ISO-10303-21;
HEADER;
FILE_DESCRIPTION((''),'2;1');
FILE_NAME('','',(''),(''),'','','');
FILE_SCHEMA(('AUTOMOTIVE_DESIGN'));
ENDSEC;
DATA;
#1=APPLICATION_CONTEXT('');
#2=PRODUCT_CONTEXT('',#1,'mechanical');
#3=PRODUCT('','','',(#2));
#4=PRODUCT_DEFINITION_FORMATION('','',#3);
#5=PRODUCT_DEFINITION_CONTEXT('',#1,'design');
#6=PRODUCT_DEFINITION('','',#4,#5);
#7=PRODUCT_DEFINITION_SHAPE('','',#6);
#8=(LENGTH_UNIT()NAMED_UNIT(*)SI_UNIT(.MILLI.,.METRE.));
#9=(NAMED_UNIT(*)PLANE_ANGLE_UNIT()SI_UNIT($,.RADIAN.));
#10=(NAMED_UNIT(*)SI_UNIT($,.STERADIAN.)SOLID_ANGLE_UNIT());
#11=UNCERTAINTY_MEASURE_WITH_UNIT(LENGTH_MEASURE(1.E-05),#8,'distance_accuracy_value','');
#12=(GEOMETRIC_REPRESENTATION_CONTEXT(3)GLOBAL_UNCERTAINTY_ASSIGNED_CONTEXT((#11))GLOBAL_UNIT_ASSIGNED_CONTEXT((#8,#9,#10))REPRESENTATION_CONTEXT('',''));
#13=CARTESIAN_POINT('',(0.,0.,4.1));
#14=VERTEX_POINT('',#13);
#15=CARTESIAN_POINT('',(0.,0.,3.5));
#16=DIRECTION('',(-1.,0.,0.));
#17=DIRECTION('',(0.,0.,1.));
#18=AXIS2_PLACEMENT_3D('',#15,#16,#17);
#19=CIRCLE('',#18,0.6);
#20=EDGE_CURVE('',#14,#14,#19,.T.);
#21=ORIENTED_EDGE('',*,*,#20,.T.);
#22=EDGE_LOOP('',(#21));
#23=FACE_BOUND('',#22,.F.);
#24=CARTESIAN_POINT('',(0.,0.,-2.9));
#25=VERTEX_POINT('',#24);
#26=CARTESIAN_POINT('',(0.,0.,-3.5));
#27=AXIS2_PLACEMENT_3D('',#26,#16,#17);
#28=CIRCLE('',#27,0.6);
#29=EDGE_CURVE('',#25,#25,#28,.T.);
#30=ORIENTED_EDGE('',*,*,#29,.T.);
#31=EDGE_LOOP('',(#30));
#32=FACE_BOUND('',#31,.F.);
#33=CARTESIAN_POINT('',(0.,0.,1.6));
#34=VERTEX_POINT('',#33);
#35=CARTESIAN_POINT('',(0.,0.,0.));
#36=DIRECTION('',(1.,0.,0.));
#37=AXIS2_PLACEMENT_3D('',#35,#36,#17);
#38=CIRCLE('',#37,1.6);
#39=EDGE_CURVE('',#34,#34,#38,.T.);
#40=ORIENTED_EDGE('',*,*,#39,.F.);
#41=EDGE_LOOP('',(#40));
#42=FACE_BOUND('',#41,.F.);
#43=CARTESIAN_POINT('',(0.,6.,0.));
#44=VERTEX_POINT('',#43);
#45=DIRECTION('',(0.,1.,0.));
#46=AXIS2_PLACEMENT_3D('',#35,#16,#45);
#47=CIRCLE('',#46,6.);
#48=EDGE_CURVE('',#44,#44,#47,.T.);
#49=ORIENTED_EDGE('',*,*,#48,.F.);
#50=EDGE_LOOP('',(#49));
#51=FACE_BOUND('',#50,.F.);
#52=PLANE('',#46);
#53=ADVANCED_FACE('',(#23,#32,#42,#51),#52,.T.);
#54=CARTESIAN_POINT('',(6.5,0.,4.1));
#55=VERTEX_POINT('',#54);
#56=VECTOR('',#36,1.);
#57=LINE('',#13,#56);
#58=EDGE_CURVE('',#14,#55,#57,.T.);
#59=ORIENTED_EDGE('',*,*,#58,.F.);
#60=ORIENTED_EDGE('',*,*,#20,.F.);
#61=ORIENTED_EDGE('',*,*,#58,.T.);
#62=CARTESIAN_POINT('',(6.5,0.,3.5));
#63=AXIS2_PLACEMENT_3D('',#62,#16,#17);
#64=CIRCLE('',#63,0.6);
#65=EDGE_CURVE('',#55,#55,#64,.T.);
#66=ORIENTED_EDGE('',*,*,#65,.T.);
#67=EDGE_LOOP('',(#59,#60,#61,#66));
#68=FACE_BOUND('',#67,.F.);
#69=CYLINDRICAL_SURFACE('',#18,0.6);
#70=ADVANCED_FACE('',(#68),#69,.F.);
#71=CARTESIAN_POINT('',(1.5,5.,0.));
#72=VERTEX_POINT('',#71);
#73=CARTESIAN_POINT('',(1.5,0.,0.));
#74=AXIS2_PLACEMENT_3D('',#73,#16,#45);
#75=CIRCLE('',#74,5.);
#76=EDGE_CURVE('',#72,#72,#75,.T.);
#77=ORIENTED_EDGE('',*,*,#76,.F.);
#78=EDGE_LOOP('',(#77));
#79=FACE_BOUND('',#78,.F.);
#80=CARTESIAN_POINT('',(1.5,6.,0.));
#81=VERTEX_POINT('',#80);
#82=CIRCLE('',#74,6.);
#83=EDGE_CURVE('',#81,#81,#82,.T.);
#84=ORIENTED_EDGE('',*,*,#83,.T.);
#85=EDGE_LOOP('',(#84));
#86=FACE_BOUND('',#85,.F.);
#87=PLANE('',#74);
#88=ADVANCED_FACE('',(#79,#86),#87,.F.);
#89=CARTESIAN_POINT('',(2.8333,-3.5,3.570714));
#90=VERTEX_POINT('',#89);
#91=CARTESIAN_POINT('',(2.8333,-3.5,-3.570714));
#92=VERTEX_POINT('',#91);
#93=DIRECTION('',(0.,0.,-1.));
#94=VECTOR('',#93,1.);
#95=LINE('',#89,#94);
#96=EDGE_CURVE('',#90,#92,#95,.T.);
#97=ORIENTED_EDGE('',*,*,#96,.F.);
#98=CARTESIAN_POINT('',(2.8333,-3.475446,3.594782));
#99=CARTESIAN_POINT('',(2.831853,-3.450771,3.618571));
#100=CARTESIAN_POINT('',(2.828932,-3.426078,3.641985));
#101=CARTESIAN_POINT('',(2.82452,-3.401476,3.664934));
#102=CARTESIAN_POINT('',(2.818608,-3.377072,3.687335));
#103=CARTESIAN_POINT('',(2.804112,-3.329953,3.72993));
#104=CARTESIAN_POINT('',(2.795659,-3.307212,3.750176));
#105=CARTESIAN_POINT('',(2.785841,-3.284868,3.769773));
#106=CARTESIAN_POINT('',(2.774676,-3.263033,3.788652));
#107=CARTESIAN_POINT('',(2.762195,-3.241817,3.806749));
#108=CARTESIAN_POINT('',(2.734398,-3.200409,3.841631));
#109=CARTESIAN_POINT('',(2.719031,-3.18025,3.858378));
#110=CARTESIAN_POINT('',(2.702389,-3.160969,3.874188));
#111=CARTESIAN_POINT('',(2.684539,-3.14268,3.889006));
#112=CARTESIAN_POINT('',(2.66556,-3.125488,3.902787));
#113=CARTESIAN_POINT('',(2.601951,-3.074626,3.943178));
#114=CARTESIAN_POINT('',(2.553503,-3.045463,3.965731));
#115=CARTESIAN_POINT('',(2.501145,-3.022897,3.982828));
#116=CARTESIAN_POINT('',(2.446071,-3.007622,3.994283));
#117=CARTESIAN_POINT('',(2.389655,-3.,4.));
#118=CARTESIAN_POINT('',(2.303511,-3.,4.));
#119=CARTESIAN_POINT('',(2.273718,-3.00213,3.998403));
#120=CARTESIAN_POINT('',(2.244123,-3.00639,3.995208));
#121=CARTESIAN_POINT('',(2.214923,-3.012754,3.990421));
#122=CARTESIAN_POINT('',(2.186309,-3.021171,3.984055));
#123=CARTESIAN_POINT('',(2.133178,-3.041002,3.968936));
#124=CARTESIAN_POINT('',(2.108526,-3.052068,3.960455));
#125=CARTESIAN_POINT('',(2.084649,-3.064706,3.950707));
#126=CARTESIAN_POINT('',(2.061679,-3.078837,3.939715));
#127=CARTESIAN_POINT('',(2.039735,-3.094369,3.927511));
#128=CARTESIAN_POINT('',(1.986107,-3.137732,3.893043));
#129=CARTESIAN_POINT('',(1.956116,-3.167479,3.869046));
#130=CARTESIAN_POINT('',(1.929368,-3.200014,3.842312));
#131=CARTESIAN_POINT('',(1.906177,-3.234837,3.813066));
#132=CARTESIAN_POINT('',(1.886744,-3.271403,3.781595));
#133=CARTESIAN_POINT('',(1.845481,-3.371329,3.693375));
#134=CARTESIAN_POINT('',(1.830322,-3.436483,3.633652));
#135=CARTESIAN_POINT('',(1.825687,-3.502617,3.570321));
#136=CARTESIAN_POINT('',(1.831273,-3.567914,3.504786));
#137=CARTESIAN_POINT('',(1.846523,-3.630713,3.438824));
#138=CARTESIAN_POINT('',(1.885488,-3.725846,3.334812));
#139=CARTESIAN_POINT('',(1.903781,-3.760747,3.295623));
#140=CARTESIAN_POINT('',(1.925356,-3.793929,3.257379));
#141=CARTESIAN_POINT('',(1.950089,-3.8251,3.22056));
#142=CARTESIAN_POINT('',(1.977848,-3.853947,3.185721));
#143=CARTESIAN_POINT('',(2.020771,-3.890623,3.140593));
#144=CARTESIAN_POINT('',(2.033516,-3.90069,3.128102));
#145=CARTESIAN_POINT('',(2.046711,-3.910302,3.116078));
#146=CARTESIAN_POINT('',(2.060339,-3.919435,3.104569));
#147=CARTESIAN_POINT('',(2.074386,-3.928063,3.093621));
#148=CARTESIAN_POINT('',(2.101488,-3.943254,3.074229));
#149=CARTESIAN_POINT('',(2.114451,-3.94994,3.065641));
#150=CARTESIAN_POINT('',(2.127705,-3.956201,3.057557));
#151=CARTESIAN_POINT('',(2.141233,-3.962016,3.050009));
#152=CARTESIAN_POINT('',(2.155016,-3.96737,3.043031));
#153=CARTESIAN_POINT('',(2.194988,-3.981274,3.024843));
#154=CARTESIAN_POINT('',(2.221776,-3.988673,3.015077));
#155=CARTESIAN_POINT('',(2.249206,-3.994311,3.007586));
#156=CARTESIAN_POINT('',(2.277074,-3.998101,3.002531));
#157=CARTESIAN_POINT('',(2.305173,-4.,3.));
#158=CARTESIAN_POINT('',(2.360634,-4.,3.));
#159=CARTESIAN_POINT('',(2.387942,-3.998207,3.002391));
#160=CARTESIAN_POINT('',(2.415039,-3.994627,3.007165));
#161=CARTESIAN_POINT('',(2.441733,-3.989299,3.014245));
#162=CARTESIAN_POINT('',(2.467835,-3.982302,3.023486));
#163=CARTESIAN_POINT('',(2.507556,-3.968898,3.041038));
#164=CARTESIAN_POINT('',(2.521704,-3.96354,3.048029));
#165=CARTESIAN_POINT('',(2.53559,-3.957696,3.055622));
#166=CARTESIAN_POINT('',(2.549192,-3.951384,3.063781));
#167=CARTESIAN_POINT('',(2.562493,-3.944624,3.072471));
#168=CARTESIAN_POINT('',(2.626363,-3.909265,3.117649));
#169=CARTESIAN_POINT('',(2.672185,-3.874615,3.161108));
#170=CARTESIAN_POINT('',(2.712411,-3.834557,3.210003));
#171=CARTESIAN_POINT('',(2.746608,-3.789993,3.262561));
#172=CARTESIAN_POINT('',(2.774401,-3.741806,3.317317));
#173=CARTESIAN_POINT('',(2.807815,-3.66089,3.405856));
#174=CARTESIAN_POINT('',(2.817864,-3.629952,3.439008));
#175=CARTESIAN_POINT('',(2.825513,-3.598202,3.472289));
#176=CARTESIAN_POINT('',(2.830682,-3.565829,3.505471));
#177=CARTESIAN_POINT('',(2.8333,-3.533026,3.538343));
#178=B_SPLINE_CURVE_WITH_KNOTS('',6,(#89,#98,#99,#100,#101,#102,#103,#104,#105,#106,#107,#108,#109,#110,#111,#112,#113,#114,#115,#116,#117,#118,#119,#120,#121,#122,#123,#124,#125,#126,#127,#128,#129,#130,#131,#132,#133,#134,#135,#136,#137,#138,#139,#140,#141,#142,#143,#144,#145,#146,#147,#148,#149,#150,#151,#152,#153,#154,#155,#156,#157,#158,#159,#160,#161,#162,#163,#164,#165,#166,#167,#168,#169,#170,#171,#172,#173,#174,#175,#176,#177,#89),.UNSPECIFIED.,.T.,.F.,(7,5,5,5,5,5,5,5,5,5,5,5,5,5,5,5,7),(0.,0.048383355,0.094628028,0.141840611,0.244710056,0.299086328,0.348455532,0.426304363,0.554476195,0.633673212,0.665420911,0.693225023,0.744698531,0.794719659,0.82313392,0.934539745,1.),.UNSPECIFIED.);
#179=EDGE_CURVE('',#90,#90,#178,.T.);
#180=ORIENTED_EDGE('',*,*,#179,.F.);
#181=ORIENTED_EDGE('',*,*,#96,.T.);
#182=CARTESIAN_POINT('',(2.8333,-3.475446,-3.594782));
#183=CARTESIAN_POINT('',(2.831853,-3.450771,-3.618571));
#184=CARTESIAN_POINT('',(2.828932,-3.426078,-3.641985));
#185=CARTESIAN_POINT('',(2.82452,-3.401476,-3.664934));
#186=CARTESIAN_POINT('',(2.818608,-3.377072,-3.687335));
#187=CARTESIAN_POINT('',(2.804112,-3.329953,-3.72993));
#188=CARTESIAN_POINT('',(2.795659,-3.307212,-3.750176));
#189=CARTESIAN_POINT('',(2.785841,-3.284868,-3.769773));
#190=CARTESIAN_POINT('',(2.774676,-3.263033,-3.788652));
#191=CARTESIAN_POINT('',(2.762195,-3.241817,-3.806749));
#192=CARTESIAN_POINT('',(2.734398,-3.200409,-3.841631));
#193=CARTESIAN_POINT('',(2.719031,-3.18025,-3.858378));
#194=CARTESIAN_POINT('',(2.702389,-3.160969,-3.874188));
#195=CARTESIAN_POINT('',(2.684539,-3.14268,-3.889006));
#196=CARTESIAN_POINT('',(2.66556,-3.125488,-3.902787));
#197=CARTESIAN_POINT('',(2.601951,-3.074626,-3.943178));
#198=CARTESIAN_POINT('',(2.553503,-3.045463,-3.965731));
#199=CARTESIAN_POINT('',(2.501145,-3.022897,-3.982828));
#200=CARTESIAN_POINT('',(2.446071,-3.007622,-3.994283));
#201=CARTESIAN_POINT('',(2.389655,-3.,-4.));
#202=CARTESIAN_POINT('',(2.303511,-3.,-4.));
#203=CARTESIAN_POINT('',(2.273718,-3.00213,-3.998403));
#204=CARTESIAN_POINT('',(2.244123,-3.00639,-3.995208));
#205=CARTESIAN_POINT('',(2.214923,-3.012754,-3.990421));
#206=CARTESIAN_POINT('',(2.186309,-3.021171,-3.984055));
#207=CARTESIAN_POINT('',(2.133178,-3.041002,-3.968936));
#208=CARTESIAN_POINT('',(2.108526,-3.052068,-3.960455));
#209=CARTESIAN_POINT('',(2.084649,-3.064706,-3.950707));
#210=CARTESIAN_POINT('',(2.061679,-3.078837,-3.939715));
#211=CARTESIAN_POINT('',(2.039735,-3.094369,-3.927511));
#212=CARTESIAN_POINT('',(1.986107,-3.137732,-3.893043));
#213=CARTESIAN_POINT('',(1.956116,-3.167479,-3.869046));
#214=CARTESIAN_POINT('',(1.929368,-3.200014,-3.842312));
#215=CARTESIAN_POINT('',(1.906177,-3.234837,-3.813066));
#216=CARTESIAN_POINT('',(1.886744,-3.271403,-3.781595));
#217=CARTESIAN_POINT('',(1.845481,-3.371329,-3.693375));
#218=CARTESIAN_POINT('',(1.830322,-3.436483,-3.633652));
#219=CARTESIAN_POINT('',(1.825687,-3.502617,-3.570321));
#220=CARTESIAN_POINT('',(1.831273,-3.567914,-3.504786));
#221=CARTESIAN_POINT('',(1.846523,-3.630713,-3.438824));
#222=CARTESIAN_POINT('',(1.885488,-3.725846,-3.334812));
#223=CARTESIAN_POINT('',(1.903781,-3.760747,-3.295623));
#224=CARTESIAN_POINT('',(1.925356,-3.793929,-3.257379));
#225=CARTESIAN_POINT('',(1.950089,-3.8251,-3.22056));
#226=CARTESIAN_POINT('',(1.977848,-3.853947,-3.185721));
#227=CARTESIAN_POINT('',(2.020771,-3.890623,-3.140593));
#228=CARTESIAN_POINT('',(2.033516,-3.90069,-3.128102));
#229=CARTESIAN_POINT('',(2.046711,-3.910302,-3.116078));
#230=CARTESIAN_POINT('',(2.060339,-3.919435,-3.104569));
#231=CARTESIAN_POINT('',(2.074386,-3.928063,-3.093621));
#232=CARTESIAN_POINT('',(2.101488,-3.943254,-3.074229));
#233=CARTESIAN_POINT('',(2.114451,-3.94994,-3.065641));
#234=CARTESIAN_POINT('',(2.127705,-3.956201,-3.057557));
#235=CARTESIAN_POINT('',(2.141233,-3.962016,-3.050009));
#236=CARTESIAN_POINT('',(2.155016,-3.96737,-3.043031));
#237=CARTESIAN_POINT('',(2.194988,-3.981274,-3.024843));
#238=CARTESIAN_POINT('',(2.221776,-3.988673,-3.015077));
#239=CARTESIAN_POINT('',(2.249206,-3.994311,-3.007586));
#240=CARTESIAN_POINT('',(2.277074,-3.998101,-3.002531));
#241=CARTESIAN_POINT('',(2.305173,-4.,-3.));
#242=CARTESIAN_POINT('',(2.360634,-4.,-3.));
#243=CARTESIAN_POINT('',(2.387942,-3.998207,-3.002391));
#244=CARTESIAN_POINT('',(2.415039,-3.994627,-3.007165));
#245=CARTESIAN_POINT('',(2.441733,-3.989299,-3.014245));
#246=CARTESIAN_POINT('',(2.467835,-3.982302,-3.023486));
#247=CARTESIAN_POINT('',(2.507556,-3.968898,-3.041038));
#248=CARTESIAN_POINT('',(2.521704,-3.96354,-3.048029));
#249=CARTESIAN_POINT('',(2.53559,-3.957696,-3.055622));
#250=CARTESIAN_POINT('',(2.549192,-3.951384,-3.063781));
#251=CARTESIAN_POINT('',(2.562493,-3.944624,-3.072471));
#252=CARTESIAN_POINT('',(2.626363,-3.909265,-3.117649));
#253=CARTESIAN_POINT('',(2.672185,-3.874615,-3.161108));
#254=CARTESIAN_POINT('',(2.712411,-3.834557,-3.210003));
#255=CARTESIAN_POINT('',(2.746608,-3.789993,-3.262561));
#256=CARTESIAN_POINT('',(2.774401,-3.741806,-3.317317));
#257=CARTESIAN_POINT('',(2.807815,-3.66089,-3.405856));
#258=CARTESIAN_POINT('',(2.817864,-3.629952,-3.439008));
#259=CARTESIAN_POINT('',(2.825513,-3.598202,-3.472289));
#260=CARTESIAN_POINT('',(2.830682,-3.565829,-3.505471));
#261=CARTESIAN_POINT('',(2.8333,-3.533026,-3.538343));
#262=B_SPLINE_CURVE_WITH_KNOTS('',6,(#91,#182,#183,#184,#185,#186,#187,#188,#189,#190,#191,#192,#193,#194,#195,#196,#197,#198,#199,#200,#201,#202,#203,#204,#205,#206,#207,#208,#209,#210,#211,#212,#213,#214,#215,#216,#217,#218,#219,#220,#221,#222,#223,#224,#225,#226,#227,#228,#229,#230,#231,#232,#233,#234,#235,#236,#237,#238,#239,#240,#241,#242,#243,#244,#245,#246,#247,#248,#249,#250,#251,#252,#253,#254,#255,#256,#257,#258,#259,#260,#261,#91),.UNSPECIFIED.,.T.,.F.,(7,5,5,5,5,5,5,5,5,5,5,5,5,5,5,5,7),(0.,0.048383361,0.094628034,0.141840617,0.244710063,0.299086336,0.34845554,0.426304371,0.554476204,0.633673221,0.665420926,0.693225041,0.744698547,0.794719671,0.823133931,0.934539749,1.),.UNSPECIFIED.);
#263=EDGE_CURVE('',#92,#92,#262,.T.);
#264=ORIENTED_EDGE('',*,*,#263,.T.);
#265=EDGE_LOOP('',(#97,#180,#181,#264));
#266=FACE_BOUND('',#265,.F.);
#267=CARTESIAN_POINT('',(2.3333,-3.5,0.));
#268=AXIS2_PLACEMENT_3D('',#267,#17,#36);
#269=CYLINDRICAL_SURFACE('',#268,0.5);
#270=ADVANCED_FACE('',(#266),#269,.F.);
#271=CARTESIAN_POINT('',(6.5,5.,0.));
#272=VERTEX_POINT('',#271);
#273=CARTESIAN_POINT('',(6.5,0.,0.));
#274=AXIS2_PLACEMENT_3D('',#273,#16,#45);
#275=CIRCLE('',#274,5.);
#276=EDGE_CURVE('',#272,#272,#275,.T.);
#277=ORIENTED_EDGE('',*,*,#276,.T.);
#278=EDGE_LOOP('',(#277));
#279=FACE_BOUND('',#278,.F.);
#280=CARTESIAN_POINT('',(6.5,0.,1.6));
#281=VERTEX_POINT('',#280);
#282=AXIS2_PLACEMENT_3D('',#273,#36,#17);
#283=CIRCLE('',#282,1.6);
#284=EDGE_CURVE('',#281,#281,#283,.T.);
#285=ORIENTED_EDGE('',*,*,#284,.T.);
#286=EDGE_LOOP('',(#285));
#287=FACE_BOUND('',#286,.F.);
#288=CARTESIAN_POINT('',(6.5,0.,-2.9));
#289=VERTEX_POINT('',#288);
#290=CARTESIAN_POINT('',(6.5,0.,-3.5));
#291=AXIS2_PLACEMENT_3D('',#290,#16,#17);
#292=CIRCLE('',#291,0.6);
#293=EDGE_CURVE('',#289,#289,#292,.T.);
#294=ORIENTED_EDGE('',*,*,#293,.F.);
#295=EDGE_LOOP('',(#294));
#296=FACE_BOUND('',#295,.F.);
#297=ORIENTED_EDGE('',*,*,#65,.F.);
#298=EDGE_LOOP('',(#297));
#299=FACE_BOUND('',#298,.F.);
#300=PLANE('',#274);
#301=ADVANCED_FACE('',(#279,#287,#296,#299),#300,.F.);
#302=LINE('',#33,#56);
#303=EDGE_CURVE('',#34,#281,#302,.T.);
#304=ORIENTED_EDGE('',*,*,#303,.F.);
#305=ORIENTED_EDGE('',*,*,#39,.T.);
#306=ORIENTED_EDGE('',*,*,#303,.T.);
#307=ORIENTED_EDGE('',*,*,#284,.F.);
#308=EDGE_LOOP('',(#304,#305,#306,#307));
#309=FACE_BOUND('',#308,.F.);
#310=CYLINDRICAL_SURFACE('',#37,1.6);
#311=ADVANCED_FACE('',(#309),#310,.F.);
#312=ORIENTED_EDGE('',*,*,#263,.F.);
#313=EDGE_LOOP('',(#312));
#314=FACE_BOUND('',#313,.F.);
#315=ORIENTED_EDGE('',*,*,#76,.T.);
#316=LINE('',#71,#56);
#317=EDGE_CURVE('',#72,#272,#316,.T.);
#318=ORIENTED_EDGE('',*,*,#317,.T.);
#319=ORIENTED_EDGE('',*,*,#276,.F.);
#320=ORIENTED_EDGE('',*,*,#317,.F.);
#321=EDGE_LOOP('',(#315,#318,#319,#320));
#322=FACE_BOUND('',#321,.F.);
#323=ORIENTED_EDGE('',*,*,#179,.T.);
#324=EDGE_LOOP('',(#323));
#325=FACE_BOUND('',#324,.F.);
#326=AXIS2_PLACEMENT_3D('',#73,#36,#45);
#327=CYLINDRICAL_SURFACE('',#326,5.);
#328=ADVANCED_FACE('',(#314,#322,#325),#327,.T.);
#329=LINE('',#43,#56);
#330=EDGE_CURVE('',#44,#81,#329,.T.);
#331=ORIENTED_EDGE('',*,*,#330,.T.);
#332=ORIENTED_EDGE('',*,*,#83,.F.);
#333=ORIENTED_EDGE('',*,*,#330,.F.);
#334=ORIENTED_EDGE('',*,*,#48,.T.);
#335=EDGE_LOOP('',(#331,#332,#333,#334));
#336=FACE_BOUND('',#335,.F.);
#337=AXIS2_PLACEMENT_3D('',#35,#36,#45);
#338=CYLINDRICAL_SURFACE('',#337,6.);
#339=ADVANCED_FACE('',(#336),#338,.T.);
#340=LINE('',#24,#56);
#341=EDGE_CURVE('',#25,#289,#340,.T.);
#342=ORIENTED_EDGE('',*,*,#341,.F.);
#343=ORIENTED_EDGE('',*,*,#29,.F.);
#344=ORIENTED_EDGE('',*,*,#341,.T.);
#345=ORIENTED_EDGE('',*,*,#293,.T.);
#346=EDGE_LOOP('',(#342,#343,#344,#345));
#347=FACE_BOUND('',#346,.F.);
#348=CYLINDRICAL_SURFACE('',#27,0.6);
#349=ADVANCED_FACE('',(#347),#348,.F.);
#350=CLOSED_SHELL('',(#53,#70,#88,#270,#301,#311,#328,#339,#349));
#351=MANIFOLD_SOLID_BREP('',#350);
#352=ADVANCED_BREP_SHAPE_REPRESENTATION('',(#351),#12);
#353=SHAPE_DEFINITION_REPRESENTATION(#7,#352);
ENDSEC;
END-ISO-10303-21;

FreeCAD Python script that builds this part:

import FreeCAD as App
import Part
import Sketcher
from FreeCAD import Vector

doc = App.newDocument("Part")
body = doc.addObject("PartDesign::Body", "Body")

# Sketch on XY plane
sketch1 = body.newObject("Sketcher::SketchObject", "Sketch")
sketch1.AttachmentSupport = (doc.getObject("XY_Plane"), [""])
sketch1.MapMode = "FlatFace"
sketch1.addGeometry([
    Part.LineSegment(Vector(0, 6, 0), Vector(0, 0, 0)),  # 0
    Part.LineSegment(Vector(0, 0, 0), Vector(6.5, 0, 0)),  # 1
    Part.LineSegment(Vector(6.5, 0, 0), Vector(6.5, 5, 0)),  # 2
    Part.LineSegment(Vector(6.5, 5, 0), Vector(1.5, 5, 0)),  # 3
    Part.LineSegment(Vector(1.5, 5, 0), Vector(1.5, 6, 0)),  # 4
    Part.LineSegment(Vector(1.5, 6, 0), Vector(0, 6, 0)),  # 5
], False)
sketch1.addConstraint([
    Sketcher.Constraint("Coincident", 0, 2, 1, 1),
    Sketcher.Constraint("Coincident", 1, 2, 2, 1),
    Sketcher.Constraint("Coincident", 2, 2, 3, 1),
    Sketcher.Constraint("Coincident", 3, 2, 4, 1),
    Sketcher.Constraint("Coincident", 4, 2, 5, 1),
    Sketcher.Constraint("Coincident", 5, 2, 0, 1),
    Sketcher.Constraint("Vertical", 0),
    Sketcher.Constraint("Horizontal", 1),
    Sketcher.Constraint("Vertical", 2),
    Sketcher.Constraint("Horizontal", 3),
    Sketcher.Constraint("Vertical", 4),
    Sketcher.Constraint("Horizontal", 5),
    Sketcher.Constraint("Coincident", 0, 2, -1, 1),
    Sketcher.Constraint("Equal", 3, 2),
    Sketcher.Constraint("DistanceX", 3, 2, 3, 1, 5.0),
    Sketcher.Constraint("DistanceX", 5, 2, 5, 1, 1.5),
    Sketcher.Constraint("DistanceY", 0, 2, 0, 1, 6.0),
])
revolution = body.newObject("PartDesign::Revolution", "Revolution")
revolution.Profile = sketch1
revolution.ReferenceAxis = (sketch1, ["H_Axis"])
revolution.Angle = 360

# Sketch on YZ plane
sketch2 = body.newObject("Sketcher::SketchObject", "Sketch001")
sketch2.AttachmentSupport = (doc.getObject("YZ_Plane"), [""])
sketch2.MapMode = "FlatFace"
sketch2.addGeometry([
    Part.Circle(Vector(0, -3.5, 0), Vector(0, 0, 1), 0.6),
    Part.Circle(Vector(0, 3.5, 0), Vector(0, 0, 1), 0.6),
], False)
sketch2.addConstraint([
    Sketcher.Constraint("Equal", 0, 1),
    Sketcher.Constraint("Symmetric", 0, 3, 1, 3, -1, 1),
    Sketcher.Constraint("PointOnObject", 0, 3, -2),
    Sketcher.Constraint("Diameter", 0, 1.2),
    Sketcher.Constraint("DistanceY", 0, 3, 1, 3, 7.0),
])
pocket1 = body.newObject("PartDesign::Pocket", "Pocket")
pocket1.Profile = sketch2
pocket1.Type = "ThroughAll"
pocket1.Reversed = True

# Sketch on YZ plane
sketch3 = body.newObject("Sketcher::SketchObject", "Sketch002")
sketch3.AttachmentSupport = (doc.getObject("YZ_Plane"), [""])
sketch3.MapMode = "FlatFace"
sketch3.addGeometry(Part.Circle(Vector(0, 0, 0), Vector(0, 0, 1), 1.6), False)
sketch3.addConstraint([
    Sketcher.Constraint("Coincident", 0, 3, -1, 1),
    Sketcher.Constraint("Diameter", 0, 3.2),
])
doc.recompute()
hole = body.newObject("PartDesign::Hole", "Hole")
hole.Profile = sketch3
hole.ThreadType = "None"
hole.Diameter = 3.2
hole.DepthType = "Dimension"
hole.Depth = 25
hole.DrillPoint = "Flat"
hole.Reversed = True

# Sketch on XY plane
sketch4 = body.newObject("Sketcher::SketchObject", "Sketch003")
sketch4.AttachmentSupport = (doc.getObject("XY_Plane"), [""])
sketch4.MapMode = "FlatFace"
sketch4.addGeometry(Part.Circle(Vector(2.3, -3.5, 0), Vector(0, 0, 1), 0.5), False)
sketch4.addConstraint([
    Sketcher.Constraint("Diameter", 0, 1.0),
    Sketcher.Constraint("DistanceY", 0, 3, -1, 1, 3.5),
    Sketcher.Constraint("DistanceX", -1, 1, 0, 3, 2.3333),
])
pocket2 = body.newObject("PartDesign::Pocket", "Pocket001")
pocket2.Profile = sketch4
pocket2.Type = "ThroughAll"
pocket2.Midplane = True

doc.recompute()
